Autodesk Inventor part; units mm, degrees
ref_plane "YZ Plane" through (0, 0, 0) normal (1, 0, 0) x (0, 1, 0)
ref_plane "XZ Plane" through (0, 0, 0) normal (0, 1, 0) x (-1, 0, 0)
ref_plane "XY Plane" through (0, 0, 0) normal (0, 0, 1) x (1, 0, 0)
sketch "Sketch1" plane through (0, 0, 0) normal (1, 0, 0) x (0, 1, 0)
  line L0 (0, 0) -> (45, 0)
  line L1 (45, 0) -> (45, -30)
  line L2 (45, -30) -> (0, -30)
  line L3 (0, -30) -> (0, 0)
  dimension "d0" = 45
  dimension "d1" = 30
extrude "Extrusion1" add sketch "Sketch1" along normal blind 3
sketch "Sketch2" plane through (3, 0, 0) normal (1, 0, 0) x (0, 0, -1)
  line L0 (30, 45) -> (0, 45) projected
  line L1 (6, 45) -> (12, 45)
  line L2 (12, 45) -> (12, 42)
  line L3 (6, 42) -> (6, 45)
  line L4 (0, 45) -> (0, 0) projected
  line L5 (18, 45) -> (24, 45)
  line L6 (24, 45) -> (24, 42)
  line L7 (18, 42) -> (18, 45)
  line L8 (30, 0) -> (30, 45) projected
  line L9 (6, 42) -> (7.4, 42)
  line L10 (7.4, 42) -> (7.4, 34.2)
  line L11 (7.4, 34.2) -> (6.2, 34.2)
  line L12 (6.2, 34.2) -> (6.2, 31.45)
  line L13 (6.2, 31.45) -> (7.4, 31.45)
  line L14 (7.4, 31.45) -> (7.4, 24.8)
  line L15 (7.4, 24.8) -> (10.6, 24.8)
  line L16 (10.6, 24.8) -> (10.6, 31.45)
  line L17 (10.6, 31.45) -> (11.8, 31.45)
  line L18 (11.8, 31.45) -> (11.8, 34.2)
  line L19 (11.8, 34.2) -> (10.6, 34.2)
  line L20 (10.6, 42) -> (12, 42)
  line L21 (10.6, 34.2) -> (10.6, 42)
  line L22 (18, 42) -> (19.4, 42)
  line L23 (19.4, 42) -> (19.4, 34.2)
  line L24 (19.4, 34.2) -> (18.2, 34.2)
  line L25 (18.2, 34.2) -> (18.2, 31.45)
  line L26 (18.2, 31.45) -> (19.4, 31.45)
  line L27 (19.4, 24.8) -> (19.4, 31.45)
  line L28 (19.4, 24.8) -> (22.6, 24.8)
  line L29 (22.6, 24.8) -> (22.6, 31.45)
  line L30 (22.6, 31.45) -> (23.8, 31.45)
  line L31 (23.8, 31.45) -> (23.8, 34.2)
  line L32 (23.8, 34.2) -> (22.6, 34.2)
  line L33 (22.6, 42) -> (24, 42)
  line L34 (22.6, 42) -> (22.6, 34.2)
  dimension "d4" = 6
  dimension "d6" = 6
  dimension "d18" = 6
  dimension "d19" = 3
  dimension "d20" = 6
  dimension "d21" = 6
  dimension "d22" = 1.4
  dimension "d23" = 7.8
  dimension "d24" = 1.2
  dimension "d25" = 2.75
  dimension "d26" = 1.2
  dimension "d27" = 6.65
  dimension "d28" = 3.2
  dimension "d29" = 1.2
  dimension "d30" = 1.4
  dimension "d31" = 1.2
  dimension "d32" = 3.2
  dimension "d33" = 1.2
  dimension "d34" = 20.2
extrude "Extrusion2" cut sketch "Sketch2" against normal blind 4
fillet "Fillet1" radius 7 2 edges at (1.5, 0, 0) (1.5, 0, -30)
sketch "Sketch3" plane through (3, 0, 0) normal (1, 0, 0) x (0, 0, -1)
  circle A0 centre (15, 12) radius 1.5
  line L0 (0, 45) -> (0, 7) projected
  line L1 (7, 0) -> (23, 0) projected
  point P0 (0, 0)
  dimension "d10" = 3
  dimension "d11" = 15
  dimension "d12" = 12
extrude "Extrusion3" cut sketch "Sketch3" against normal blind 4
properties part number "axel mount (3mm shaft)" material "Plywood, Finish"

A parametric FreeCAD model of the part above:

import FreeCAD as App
import Part
import Sketcher
Q = App.Units.Quantity


def edges_at(feature, points):
    """Names of the edges that pass closest to the given points."""
    edges = feature.Shape.Edges
    near = lambda p: min(range(len(edges)), key=lambda i: edges[i].distToShape(Part.Vertex(*p))[0])
    return sorted({f"Edge{near(p) + 1}" for p in points})

doc = App.newDocument("Part")
params = doc.addObject("Spreadsheet::Sheet", "Params")
for row, (alias, value) in enumerate([
    ("sketch1_width", "45 mm"),
    ("sketch1_height", "30 mm"),
    ("pad1_length", "3 mm"),
    ("sketch2_width", "3 mm"),
    ("sketch2_height", "6 mm"),
    ("sketch2_width2", "7.8 mm"),
    ("sketch2_height2", "1.4 mm"),
    ("sketch2_height3", "1.2 mm"),
    ("pocket1_length", "4 mm"),
    ("fillet_radius", "7 mm"),
    ("sketch3_diameter", "3 mm"),
    ("pocket2_length", "4 mm"),
], start=1):
    params.set(f"A{row}", alias)
    params.set(f"B{row}", "=" + value)
    params.setAlias(f"B{row}", alias)

body = doc.addObject("PartDesign::Body", "Body")

# Sketch on YZ plane
sketch1 = body.newObject("Sketcher::SketchObject", "Sketch")
sketch1.AttachmentSupport = (doc.getObject("YZ_Plane"), [""])
sketch1.MapMode = "FlatFace"
sketch1.addGeometry([
    Part.LineSegment(App.Vector(45, 0, 0), App.Vector(0, 0, 0)),
    Part.LineSegment(App.Vector(0, 0, 0), App.Vector(0, -30, 0)),
    Part.LineSegment(App.Vector(0, -30, 0), App.Vector(45, -30, 0)),
    Part.LineSegment(App.Vector(45, -30, 0), App.Vector(45, 0, 0)),
], False)
sketch1.addConstraint([
    Sketcher.Constraint("Coincident", 0, 2, 1, 1),
    Sketcher.Constraint("Coincident", 1, 2, 2, 1),
    Sketcher.Constraint("Coincident", 2, 2, 3, 1),
    Sketcher.Constraint("Coincident", 3, 2, 0, 1),
    Sketcher.Constraint("Horizontal", 0),
    Sketcher.Constraint("Vertical", 1),
    Sketcher.Constraint("Horizontal", 2),
    Sketcher.Constraint("Vertical", 3),
    Sketcher.Constraint("Coincident", 0, 2, -1, 1),
    Sketcher.Constraint("DistanceX", 0, 2, 0, 1, Q("45 mm")),
    Sketcher.Constraint("DistanceY", 1, 2, 1, 1, Q("30 mm")),
])
sketch1.setExpression("Constraints[9]", "Params.sketch1_width")
sketch1.setExpression("Constraints[10]", "Params.sketch1_height")
pad1 = body.newObject("PartDesign::Pad", "Pad")
pad1.Profile = sketch1
pad1.setExpression("Length", "Params.pad1_length")

# Sketch on YZ plane
sketch2 = body.newObject("Sketcher::SketchObject", "Sketch001")
sketch2.AttachmentSupport = (doc.getObject("YZ_Plane"), [""])
sketch2.MapMode = "FlatFace"
sketch2.AttachmentOffset = App.Placement(App.Vector(0, 0, 3), App.Rotation())
sketch2.addGeometry([
    Part.LineSegment(App.Vector(42, -24, 0), App.Vector(45, -24, 0)),  # 0
    Part.LineSegment(App.Vector(45, -24, 0), App.Vector(45, -18, 0)),  # 1
    Part.LineSegment(App.Vector(45, -18, 0), App.Vector(42, -18, 0)),  # 2
    Part.LineSegment(App.Vector(42, -18, 0), App.Vector(42, -19.4, 0)),  # 3
    Part.LineSegment(App.Vector(42, -19.4, 0), App.Vector(34.2, -19.4, 0)),  # 4
    Part.LineSegment(App.Vector(34.2, -19.4, 0), App.Vector(34.2, -18.2, 0)),  # 5
    Part.LineSegment(App.Vector(34.2, -18.2, 0), App.Vector(31.45, -18.2, 0)),  # 6
    Part.LineSegment(App.Vector(31.45, -18.2, 0), App.Vector(31.45, -19.4, 0)),  # 7
    Part.LineSegment(App.Vector(31.45, -19.4, 0), App.Vector(24.8, -19.4, 0)),  # 8
    Part.LineSegment(App.Vector(24.8, -19.4, 0), App.Vector(24.8, -22.6, 0)),  # 9
    Part.LineSegment(App.Vector(24.8, -22.6, 0), App.Vector(31.45, -22.6, 0)),  # 10
    Part.LineSegment(App.Vector(31.45, -22.6, 0), App.Vector(31.45, -23.8, 0)),  # 11
    Part.LineSegment(App.Vector(31.45, -23.8, 0), App.Vector(34.2, -23.8, 0)),  # 12
    Part.LineSegment(App.Vector(34.2, -23.8, 0), App.Vector(34.2, -22.6, 0)),  # 13
    Part.LineSegment(App.Vector(34.2, -22.6, 0), App.Vector(42, -22.6, 0)),  # 14
    Part.LineSegment(App.Vector(42, -22.6, 0), App.Vector(42, -24, 0)),  # 15
    Part.LineSegment(App.Vector(42, -12, 0), App.Vector(45, -12, 0)),  # 16
    Part.LineSegment(App.Vector(45, -12, 0), App.Vector(45, -6, 0)),  # 17
    Part.LineSegment(App.Vector(45, -6, 0), App.Vector(42, -6, 0)),  # 18
    Part.LineSegment(App.Vector(42, -6, 0), App.Vector(42, -7.4, 0)),  # 19
    Part.LineSegment(App.Vector(42, -7.4, 0), App.Vector(34.2, -7.4, 0)),  # 20
    Part.LineSegment(App.Vector(34.2, -7.4, 0), App.Vector(34.2, -6.2, 0)),  # 21
    Part.LineSegment(App.Vector(34.2, -6.2, 0), App.Vector(31.45, -6.2, 0)),  # 22
    Part.LineSegment(App.Vector(31.45, -6.2, 0), App.Vector(31.45, -7.4, 0)),  # 23
    Part.LineSegment(App.Vector(31.45, -7.4, 0), App.Vector(24.8, -7.4, 0)),  # 24
    Part.LineSegment(App.Vector(24.8, -7.4, 0), App.Vector(24.8, -10.6, 0)),  # 25
    Part.LineSegment(App.Vector(24.8, -10.6, 0), App.Vector(31.45, -10.6, 0)),  # 26
    Part.LineSegment(App.Vector(31.45, -10.6, 0), App.Vector(31.45, -11.8, 0)),  # 27
    Part.LineSegment(App.Vector(31.45, -11.8, 0), App.Vector(34.2, -11.8, 0)),  # 28
    Part.LineSegment(App.Vector(34.2, -11.8, 0), App.Vector(34.2, -10.6, 0)),  # 29
    Part.LineSegment(App.Vector(34.2, -10.6, 0), App.Vector(42, -10.6, 0)),  # 30
    Part.LineSegment(App.Vector(42, -10.6, 0), App.Vector(42, -12, 0)),  # 31
], False)
sketch2.addConstraint([
    Sketcher.Constraint("Coincident", 0, 2, 1, 1),
    Sketcher.Constraint("Coincident", 1, 2, 2, 1),
    Sketcher.Constraint("Coincident", 2, 2, 3, 1),
    Sketcher.Constraint("Coincident", 3, 2, 4, 1),
    Sketcher.Constraint("Coincident", 4, 2, 5, 1),
    Sketcher.Constraint("Coincident", 5, 2, 6, 1),
    Sketcher.Constraint("Coincident", 6, 2, 7, 1),
    Sketcher.Constraint("Coincident", 7, 2, 8, 1),
    Sketcher.Constraint("Coincident", 8, 2, 9, 1),
    Sketcher.Constraint("Coincident", 9, 2, 10, 1),
    Sketcher.Constraint("Coincident", 10, 2, 11, 1),
    Sketcher.Constraint("Coincident", 11, 2, 12, 1),
    Sketcher.Constraint("Coincident", 12, 2, 13, 1),
    Sketcher.Constraint("Coincident", 13, 2, 14, 1),
    Sketcher.Constraint("Coincident", 14, 2, 15, 1),
    Sketcher.Constraint("Coincident", 15, 2, 0, 1),
    Sketcher.Constraint("Coincident", 16, 2, 17, 1),
    Sketcher.Constraint("Coincident", 17, 2, 18, 1),
    Sketcher.Constraint("Coincident", 18, 2, 19, 1),
    Sketcher.Constraint("Coincident", 19, 2, 20, 1),
    Sketcher.Constraint("Coincident", 20, 2, 21, 1),
    Sketcher.Constraint("Coincident", 21, 2, 22, 1),
    Sketcher.Constraint("Coincident", 22, 2, 23, 1),
    Sketcher.Constraint("Coincident", 23, 2, 24, 1),
    Sketcher.Constraint("Coincident", 24, 2, 25, 1),
    Sketcher.Constraint("Coincident", 25, 2, 26, 1),
    Sketcher.Constraint("Coincident", 26, 2, 27, 1),
    Sketcher.Constraint("Coincident", 27, 2, 28, 1),
    Sketcher.Constraint("Coincident", 28, 2, 29, 1),
    Sketcher.Constraint("Coincident", 29, 2, 30, 1),
    Sketcher.Constraint("Coincident", 30, 2, 31, 1),
    Sketcher.Constraint("Coincident", 31, 2, 16, 1),
    Sketcher.Constraint("Horizontal", 0),
    Sketcher.Constraint("Vertical", 1),
    Sketcher.Constraint("Horizontal", 2),
    Sketcher.Constraint("Vertical", 3),
    Sketcher.Constraint("Horizontal", 4),
    Sketcher.Constraint("Vertical", 5),
    Sketcher.Constraint("Horizontal", 6),
    Sketcher.Constraint("Vertical", 7),
    Sketcher.Constraint("Horizontal", 8),
    Sketcher.Constraint("Vertical", 9),
    Sketcher.Constraint("Horizontal", 10),
    Sketcher.Constraint("Vertical", 11),
    Sketcher.Constraint("Horizontal", 12),
    Sketcher.Constraint("Vertical", 13),
    Sketcher.Constraint("Horizontal", 14),
    Sketcher.Constraint("Vertical", 15),
    Sketcher.Constraint("Horizontal", 16),
    Sketcher.Constraint("Vertical", 17),
    Sketcher.Constraint("Horizontal", 18),
    Sketcher.Constraint("Vertical", 19),
    Sketcher.Constraint("Horizontal", 20),
    Sketcher.Constraint("Vertical", 21),
    Sketcher.Constraint("Horizontal", 22),
    Sketcher.Constraint("Vertical", 23),
    Sketcher.Constraint("Horizontal", 24),
    Sketcher.Constraint("Vertical", 25),
    Sketcher.Constraint("Horizontal", 26),
    Sketcher.Constraint("Vertical", 27),
    Sketcher.Constraint("Horizontal", 28),
    Sketcher.Constraint("Vertical", 29),
    Sketcher.Constraint("Horizontal", 30),
    Sketcher.Constraint("Vertical", 31),
    Sketcher.Constraint("Horizontal", 4, 2, 7, 2),
    Sketcher.Constraint("Horizontal", 10, 2, 13, 2),
    Sketcher.Constraint("Horizontal", 20, 2, 23, 2),
    Sketcher.Constraint("Horizontal", 26, 2, 29, 2),
    Sketcher.Constraint("Vertical", 7, 2, 10, 2),
    Sketcher.Constraint("Vertical", 5, 2, 12, 2),
    Sketcher.Constraint("Vertical", 3, 2, 14, 2),
    Sketcher.Constraint("Vertical", 1, 2, 16, 2),
    Sketcher.Constraint("Vertical", 15, 2, 18, 2),
    Sketcher.Constraint("Vertical", 13, 2, 20, 2),
    Sketcher.Constraint("Vertical", 11, 2, 22, 2),
    Sketcher.Constraint("Vertical", 9, 2, 24, 2),
    Sketcher.Constraint("Vertical", 23, 2, 26, 2),
    Sketcher.Constraint("Vertical", 21, 2, 28, 2),
    Sketcher.Constraint("Vertical", 19, 2, 30, 2),
    Sketcher.Constraint("Equal", 7, 11),
    Sketcher.Constraint("Equal", 3, 15),
    Sketcher.Constraint("Equal", 1, 17),
    Sketcher.Constraint("Equal", 15, 19),
    Sketcher.Constraint("Equal", 13, 21),
    Sketcher.Constraint("Equal", 9, 25),
    Sketcher.Constraint("Equal", 23, 27),
    Sketcher.Constraint("DistanceX", 0, 1, 0, 2, Q("3 mm")),
    Sketcher.Constraint("DistanceY", 1, 1, 1, 2, Q("6 mm")),
    Sketcher.Constraint("DistanceX", 4, 2, 4, 1, Q("7.8 mm")),
    Sketcher.Constraint("DistanceY", 3, 2, 3, 1, Q("1.4 mm")),
    Sketcher.Constraint("DistanceY", 5, 1, 5, 2, Q("1.2 mm")),
    Sketcher.Constraint("DistanceY", 17, 2, -1, 1, Q("6 mm")),
    Sketcher.Constraint("DistanceY", 1, 2, 16, 2, Q("6 mm")),
    Sketcher.Constraint("DistanceX", 6, 2, 6, 1, Q("2.75 mm")),
    Sketcher.Constraint("DistanceX", 8, 2, 8, 1, Q("6.65 mm")),
    Sketcher.Constraint("DistanceX", -1, 1, 0, 2, Q("45 mm")),
])
sketch2.setExpression("Constraints[86]", "Params.sketch2_width")
sketch2.setExpression("Constraints[87]", "Params.sketch2_height")
sketch2.setExpression("Constraints[88]", "Params.sketch2_width2")
sketch2.setExpression("Constraints[89]", "Params.sketch2_height2")
sketch2.setExpression("Constraints[90]", "Params.sketch2_height3")
pocket1 = body.newObject("PartDesign::Pocket", "Pocket")
pocket1.Profile = sketch2
pocket1.setExpression("Length", "Params.pocket1_length")
doc.recompute()

fillet = body.newObject("PartDesign::Fillet", "Fillet")
fillet.Base = (pocket1, edges_at(pocket1, [(1.5, 0, 0), (1.5, 0, -30)]))
fillet.setExpression("Radius", "Params.fillet_radius")

# Sketch on YZ plane
sketch3 = body.newObject("Sketcher::SketchObject", "Sketch002")
sketch3.AttachmentSupport = (doc.getObject("YZ_Plane"), [""])
sketch3.MapMode = "FlatFace"
sketch3.AttachmentOffset = App.Placement(App.Vector(0, 0, 3), App.Rotation())
sketch3.addGeometry(Part.Circle(App.Vector(12, -15, 0), App.Vector(0, 0, 1), 1.5), False)
sketch3.addConstraint([
    Sketcher.Constraint("Diameter", 0, Q("3 mm")),
    Sketcher.Constraint("DistanceX", -1, 1, 0, 3, Q("12 mm")),
    Sketcher.Constraint("DistanceY", 0, 3, -1, 1, Q("15 mm")),
])
sketch3.setExpression("Constraints[0]", "Params.sketch3_diameter")
pocket2 = body.newObject("PartDesign::Pocket", "Pocket001")
pocket2.Profile = sketch3
pocket2.setExpression("Length", "Params.pocket2_length")

doc.recompute()
